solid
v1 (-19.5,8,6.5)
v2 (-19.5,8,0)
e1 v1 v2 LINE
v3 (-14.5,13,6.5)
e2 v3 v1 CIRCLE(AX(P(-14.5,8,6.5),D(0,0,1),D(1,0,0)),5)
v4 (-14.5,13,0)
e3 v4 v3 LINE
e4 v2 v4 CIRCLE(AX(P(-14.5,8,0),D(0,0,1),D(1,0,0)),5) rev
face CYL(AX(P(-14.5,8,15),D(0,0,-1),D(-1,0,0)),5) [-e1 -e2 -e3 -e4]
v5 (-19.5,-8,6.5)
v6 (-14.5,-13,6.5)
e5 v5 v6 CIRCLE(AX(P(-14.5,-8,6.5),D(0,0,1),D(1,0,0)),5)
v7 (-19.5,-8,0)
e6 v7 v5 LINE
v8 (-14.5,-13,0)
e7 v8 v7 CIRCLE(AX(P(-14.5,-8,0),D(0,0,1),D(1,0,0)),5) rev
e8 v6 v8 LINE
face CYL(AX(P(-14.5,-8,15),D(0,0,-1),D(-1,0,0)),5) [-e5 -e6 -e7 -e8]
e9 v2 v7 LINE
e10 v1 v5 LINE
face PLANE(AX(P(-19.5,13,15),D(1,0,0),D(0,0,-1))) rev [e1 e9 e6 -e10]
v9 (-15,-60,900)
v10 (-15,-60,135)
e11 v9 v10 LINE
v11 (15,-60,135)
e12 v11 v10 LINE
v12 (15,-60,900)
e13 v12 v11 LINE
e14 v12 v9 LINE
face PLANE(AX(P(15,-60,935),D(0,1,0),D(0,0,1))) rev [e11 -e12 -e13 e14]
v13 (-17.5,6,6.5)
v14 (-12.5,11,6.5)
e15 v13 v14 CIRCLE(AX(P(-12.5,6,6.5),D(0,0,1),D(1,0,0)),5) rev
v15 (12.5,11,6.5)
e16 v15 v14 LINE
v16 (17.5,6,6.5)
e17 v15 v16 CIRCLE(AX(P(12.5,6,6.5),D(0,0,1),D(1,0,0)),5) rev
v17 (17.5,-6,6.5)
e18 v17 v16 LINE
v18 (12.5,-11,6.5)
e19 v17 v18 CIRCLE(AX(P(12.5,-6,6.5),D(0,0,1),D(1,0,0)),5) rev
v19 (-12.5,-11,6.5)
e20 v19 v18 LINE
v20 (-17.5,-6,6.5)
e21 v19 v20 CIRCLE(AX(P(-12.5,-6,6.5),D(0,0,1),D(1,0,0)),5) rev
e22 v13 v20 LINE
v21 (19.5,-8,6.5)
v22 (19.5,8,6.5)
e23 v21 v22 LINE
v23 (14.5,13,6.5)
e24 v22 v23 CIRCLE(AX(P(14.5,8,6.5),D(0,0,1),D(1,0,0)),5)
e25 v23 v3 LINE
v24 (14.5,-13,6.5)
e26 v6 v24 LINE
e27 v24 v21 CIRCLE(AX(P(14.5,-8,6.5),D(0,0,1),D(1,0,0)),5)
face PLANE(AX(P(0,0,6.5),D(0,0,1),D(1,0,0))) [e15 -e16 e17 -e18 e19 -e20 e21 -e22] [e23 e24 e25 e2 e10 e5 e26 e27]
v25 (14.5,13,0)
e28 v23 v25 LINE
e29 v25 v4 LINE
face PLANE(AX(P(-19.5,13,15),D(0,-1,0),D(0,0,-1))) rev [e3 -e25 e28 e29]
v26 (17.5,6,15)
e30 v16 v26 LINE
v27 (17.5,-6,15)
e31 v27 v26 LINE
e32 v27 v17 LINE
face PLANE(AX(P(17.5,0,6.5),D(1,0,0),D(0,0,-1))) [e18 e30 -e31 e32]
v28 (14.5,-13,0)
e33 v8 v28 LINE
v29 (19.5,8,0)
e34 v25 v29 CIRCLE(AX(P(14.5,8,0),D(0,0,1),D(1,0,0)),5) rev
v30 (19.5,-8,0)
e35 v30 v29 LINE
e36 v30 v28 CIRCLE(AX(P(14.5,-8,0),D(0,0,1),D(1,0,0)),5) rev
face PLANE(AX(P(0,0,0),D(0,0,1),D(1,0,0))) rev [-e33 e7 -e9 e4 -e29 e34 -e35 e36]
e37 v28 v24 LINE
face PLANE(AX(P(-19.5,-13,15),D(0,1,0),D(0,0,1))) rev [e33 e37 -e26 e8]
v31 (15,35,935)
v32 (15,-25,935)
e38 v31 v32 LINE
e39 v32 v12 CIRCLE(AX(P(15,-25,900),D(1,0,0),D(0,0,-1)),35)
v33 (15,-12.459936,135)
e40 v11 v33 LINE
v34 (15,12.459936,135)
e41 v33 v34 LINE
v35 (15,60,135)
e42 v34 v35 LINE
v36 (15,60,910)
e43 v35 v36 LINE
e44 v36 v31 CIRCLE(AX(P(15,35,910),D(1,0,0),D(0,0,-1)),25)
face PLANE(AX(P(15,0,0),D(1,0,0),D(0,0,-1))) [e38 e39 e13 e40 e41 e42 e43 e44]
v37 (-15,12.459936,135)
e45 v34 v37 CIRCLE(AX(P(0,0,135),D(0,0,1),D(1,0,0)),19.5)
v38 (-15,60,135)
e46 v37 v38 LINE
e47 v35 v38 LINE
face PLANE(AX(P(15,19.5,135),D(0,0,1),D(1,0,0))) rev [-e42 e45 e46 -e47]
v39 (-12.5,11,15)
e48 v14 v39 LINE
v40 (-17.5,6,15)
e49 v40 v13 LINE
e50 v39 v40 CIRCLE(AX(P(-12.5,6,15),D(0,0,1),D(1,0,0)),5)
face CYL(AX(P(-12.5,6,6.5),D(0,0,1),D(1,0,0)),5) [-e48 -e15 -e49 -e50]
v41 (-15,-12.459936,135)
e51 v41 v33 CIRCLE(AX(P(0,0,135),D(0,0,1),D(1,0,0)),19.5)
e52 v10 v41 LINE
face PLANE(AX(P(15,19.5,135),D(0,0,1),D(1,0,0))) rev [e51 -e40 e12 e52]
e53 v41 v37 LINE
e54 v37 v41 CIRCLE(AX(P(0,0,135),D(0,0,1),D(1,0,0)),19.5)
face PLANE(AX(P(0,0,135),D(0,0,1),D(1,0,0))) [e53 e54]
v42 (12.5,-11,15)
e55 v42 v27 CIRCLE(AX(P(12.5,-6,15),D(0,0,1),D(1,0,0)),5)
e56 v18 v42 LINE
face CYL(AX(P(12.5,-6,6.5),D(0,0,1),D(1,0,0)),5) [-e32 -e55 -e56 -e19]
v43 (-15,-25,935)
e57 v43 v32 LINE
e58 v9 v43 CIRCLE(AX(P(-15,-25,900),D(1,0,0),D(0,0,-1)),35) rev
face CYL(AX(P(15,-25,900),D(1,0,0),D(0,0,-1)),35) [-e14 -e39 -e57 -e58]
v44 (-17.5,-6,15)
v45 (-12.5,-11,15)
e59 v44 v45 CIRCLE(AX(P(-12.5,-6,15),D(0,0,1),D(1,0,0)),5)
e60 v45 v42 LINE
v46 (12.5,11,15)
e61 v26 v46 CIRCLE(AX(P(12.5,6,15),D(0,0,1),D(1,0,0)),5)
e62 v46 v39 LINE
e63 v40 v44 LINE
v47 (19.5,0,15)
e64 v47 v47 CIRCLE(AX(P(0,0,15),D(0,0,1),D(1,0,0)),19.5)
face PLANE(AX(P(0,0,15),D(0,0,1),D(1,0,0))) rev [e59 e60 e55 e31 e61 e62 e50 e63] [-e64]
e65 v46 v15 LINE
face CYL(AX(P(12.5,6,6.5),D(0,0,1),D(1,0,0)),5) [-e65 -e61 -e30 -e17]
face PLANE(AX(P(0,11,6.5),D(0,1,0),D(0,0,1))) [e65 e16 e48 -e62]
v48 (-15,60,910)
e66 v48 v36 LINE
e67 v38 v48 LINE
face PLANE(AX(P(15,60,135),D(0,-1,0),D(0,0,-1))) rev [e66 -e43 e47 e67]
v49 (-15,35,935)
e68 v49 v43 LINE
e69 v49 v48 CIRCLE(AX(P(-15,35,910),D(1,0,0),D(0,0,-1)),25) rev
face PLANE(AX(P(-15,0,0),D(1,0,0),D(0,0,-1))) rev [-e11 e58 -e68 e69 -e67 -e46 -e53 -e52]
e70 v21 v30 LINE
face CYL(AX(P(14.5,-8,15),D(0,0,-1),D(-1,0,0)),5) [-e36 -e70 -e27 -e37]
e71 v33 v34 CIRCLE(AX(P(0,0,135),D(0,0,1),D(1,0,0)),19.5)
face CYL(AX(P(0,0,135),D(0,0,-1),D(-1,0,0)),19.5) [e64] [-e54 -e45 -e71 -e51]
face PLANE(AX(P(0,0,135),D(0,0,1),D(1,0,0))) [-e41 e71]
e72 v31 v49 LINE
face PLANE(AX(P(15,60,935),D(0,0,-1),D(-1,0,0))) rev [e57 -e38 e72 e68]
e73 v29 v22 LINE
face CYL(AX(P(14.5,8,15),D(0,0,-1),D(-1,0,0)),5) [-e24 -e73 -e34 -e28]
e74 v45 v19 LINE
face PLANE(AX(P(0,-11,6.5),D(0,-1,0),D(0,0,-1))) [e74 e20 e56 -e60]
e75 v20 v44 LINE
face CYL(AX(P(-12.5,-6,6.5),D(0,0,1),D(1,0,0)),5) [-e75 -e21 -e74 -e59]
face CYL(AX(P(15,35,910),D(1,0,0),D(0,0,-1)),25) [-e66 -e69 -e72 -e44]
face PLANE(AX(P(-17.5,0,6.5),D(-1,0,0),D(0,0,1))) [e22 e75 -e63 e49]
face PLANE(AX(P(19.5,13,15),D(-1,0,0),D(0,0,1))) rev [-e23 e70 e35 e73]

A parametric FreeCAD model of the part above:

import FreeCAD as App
import Part
import Sketcher

V = App.Vector


def edges_at(feature, points):
    """Names of the edges that pass closest to the given points."""
    edges = feature.Shape.Edges
    near = lambda p: min(range(len(edges)), key=lambda i: edges[i].distToShape(Part.Vertex(*p))[0])
    return sorted({f"Edge{near(p) + 1}" for p in points})

doc = App.newDocument("Part")
body = doc.addObject("PartDesign::Body", "Body")

sketch1 = body.newObject("Sketcher::SketchObject", "Sketch")
sketch1.AttachmentSupport = (doc.getObject("XY_Plane"), [""])
sketch1.MapMode = "FlatFace"
sketch1.addGeometry([
    Part.LineSegment(V(-19.5, 13, 0), V(-19.5, -13, 0)),
    Part.LineSegment(V(-19.5, -13, 0), V(19.5, -13, 0)),
    Part.LineSegment(V(19.5, -13, 0), V(19.5, 13, 0)),
    Part.LineSegment(V(19.5, 13, 0), V(-19.5, 13, 0)),
], False)
sketch1.addConstraint([
    Sketcher.Constraint("Coincident", 0, 2, 1, 1),
    Sketcher.Constraint("Coincident", 1, 2, 2, 1),
    Sketcher.Constraint("Coincident", 2, 2, 3, 1),
    Sketcher.Constraint("Coincident", 3, 2, 0, 1),
    Sketcher.Constraint("Vertical", 0),
    Sketcher.Constraint("Horizontal", 1),
    Sketcher.Constraint("Vertical", 2),
    Sketcher.Constraint("Horizontal", 3),
    Sketcher.Constraint("Symmetric", 0, 2, 2, 2, -1, 1),
    Sketcher.Constraint("DistanceX", 1, 1, 1, 2, 39.0),
    Sketcher.Constraint("DistanceY", 0, 2, 0, 1, 26.0),
])
pad1 = body.newObject("PartDesign::Pad", "Pad")
pad1.Profile = sketch1
pad1.Length = 15

sketch2 = body.newObject("Sketcher::SketchObject", "Sketch001")
sketch2.AttachmentSupport = (doc.getObject("XY_Plane"), [""])
sketch2.MapMode = "FlatFace"
sketch2.AttachmentOffset = App.Placement(V(0, 0, 15), App.Rotation())
sketch2.addGeometry([
    Part.LineSegment(V(-19.5, 13, 0), V(-19.5, -13, 0)),
    Part.LineSegment(V(-19.5, -13, 0), V(19.5, -13, 0)),
    Part.LineSegment(V(19.5, -13, 0), V(19.5, 13, 0)),
    Part.LineSegment(V(19.5, 13, 0), V(-19.5, 13, 0)),
    Part.LineSegment(V(17.5, -11, 0), V(-17.5, -11, 0)),
    Part.LineSegment(V(-17.5, -11, 0), V(-17.5, 11, 0)),
    Part.LineSegment(V(-17.5, 11, 0), V(17.5, 11, 0)),
    Part.LineSegment(V(17.5, 11, 0), V(17.5, -11, 0)),
], False)
sketch2.addConstraint([
    Sketcher.Constraint("Coincident", 0, 2, 1, 1),
    Sketcher.Constraint("Coincident", 1, 2, 2, 1),
    Sketcher.Constraint("Coincident", 2, 2, 3, 1),
    Sketcher.Constraint("Coincident", 3, 2, 0, 1),
    Sketcher.Constraint("Coincident", 4, 2, 5, 1),
    Sketcher.Constraint("Coincident", 5, 2, 6, 1),
    Sketcher.Constraint("Coincident", 6, 2, 7, 1),
    Sketcher.Constraint("Coincident", 7, 2, 4, 1),
    Sketcher.Constraint("Vertical", 0),
    Sketcher.Constraint("Horizontal", 1),
    Sketcher.Constraint("Vertical", 2),
    Sketcher.Constraint("Horizontal", 3),
    Sketcher.Constraint("Horizontal", 4),
    Sketcher.Constraint("Vertical", 5),
    Sketcher.Constraint("Horizontal", 6),
    Sketcher.Constraint("Vertical", 7),
    Sketcher.Constraint("Symmetric", 0, 2, 2, 2, -1, 1),
    Sketcher.Constraint("Symmetric", 4, 2, 6, 2, -1, 1),
    Sketcher.Constraint("DistanceX", 1, 1, 1, 2, 39.0),
    Sketcher.Constraint("DistanceX", 4, 2, 4, 1, 35.0),
    Sketcher.Constraint("DistanceY", 0, 2, 0, 1, 26.0),
    Sketcher.Constraint("DistanceY", 5, 1, 5, 2, 22.0),
])
pocket1 = body.newObject("PartDesign::Pocket", "Pocket")
pocket1.Profile = sketch2
pocket1.Length = 8.5
doc.recompute()

fillet = body.newObject("PartDesign::Fillet", "Fillet")
fillet.Base = (pocket1, edges_at(pocket1, [
    (19.5, -13, 3.25),
    (-19.5, -13, 3.25),
    (-19.5, 13, 3.25),
    (19.5, 13, 3.25),
    (17.5, -11, 10.75),
    (17.5, 11, 10.75),
    (-17.5, 11, 10.75),
    (-17.5, -11, 10.75),
]))
fillet.Radius = 5

sketch3 = body.newObject("Sketcher::SketchObject", "Sketch002")
sketch3.AttachmentSupport = (doc.getObject("XY_Plane"), [""])
sketch3.MapMode = "FlatFace"
sketch3.AttachmentOffset = App.Placement(V(0, 0, 15), App.Rotation())
sketch3.addGeometry(Part.Circle(V(0, 0, 0), V(0, 0, 1), 19.5), False)
sketch3.addConstraint([
    Sketcher.Constraint("Coincident", 0, 3, -1, 1),
    Sketcher.Constraint("Diameter", 0, 39.0),
])
pad2 = body.newObject("PartDesign::Pad", "Pad001")
pad2.Profile = sketch3
pad2.Length = 120

sketch4 = body.newObject("Sketcher::SketchObject", "Sketch003")
sketch4.AttachmentSupport = (doc.getObject("YZ_Plane"), [""])
sketch4.MapMode = "FlatFace"
sketch4.addGeometry([
    Part.LineSegment(V(-60, 135, 0), V(60, 135, 0)),
    Part.LineSegment(V(60, 135, 0), V(60, 935, 0)),
    Part.LineSegment(V(60, 935, 0), V(-60, 935, 0)),
    Part.LineSegment(V(-60, 935, 0), V(-60, 135, 0)),
], False)
sketch4.addConstraint([
    Sketcher.Constraint("Coincident", 0, 2, 1, 1),
    Sketcher.Constraint("Coincident", 1, 2, 2, 1),
    Sketcher.Constraint("Coincident", 2, 2, 3, 1),
    Sketcher.Constraint("Coincident", 3, 2, 0, 1),
    Sketcher.Constraint("Horizontal", 0),
    Sketcher.Constraint("Vertical", 1),
    Sketcher.Constraint("Horizontal", 2),
    Sketcher.Constraint("Vertical", 3),
    Sketcher.Constraint("DistanceX", 0, 1, 0, 2, 120.0),
    Sketcher.Constraint("DistanceY", 1, 1, 1, 2, 800.0),
    Sketcher.Constraint("DistanceX", -1, 1, 0, 2, 60.0),
    Sketcher.Constraint("DistanceY", -1, 1, 0, 2, 135.0),
])
pad3 = body.newObject("PartDesign::Pad", "Pad002")
pad3.Profile = sketch4
pad3.Length = 30
pad3.Midplane = True
doc.recompute()

fillet2 = body.newObject("PartDesign::Fillet", "Fillet001")
fillet2.Base = (pad3, edges_at(pad3, [(0, 60, 935)]))
fillet2.Radius = 25
doc.recompute()

fillet3 = body.newObject("PartDesign::Fillet", "Fillet002")
fillet3.Base = (fillet2, edges_at(fillet2, [(0, -60, 935)]))
fillet3.Radius = 35

doc.recompute()
